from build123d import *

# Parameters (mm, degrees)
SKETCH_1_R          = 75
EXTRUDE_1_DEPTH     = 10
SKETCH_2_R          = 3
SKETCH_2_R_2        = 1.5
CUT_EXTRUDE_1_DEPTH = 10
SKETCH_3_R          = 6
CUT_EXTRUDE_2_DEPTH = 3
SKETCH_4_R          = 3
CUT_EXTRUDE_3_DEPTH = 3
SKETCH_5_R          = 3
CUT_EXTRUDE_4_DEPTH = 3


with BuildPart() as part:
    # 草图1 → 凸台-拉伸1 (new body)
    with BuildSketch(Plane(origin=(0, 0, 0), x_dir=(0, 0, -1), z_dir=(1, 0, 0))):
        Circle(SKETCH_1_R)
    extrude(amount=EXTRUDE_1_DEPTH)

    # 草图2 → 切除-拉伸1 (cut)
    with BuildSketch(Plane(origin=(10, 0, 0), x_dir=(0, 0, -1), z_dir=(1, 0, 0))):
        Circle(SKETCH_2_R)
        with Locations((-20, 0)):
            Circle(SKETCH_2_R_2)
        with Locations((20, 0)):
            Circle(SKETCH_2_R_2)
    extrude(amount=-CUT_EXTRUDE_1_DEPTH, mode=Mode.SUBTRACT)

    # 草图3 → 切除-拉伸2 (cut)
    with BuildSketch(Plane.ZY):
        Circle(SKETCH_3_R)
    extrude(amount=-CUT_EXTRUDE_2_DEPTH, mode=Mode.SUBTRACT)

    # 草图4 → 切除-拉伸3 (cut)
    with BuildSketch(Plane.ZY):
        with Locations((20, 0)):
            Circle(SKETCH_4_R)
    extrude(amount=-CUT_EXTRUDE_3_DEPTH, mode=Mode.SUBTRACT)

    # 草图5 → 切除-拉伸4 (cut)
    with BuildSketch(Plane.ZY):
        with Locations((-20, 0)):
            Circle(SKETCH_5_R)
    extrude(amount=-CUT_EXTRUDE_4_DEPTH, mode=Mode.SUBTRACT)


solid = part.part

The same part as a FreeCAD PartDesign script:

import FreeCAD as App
import Part
import Sketcher
from FreeCAD import Vector
Q = App.Units.Quantity

doc = App.newDocument("Part")
params = doc.addObject("Spreadsheet::Sheet", "Params")
for row, (alias, value) in enumerate([
    ("sketch1_diameter", "150 mm"),
    ("pad1_length", "10 mm"),
    ("sketch2_diameter", "6 mm"),
    ("sketch2_diameter2", "3 mm"),
    ("pocket1_length", "10 mm"),
    ("sketch3_diameter", "12 mm"),
    ("pocket2_length", "3 mm"),
    ("sketch4_diameter", "6 mm"),
    ("pocket3_length", "3 mm"),
    ("sketch5_diameter", "6 mm"),
    ("pocket4_length", "3 mm"),
], start=1):
    params.set(f"A{row}", alias)
    params.set(f"B{row}", "=" + value)
    params.setAlias(f"B{row}", alias)

body = doc.addObject("PartDesign::Body", "Body")

sketch1 = body.newObject("Sketcher::SketchObject", "Sketch")
sketch1.AttachmentSupport = (doc.getObject("YZ_Plane"), [""])
sketch1.MapMode = "FlatFace"
sketch1.addGeometry(Part.Circle(Vector(0, 0, 0), Vector(0, 0, 1), 75), False)
sketch1.addConstraint(Sketcher.Constraint("Coincident", 0, 3, -1, 1))
sketch1.addConstraint(Sketcher.Constraint("Diameter", 0, Q("150 mm")))
sketch1.setExpression("Constraints[1]", "Params.sketch1_diameter")
pad1 = body.newObject("PartDesign::Pad", "Pad")
pad1.Profile = sketch1
pad1.setExpression("Length", "Params.pad1_length")

sketch2 = body.newObject("Sketcher::SketchObject", "Sketch001")
sketch2.AttachmentSupport = (doc.getObject("YZ_Plane"), [""])
sketch2.MapMode = "FlatFace"
sketch2.AttachmentOffset = App.Placement(Vector(0, 0, 10), App.Rotation())
sketch2.addGeometry(Part.Circle(Vector(0, 0, 0), Vector(0, 0, 1), 3), False)
sketch2.addGeometry(Part.Circle(Vector(0, 20, 0), Vector(0, 0, 1), 1.5), False)
sketch2.addGeometry(Part.Circle(Vector(0, -20, 0), Vector(0, 0, 1), 1.5), False)
sketch2.addConstraint(Sketcher.Constraint("Coincident", 0, 3, -1, 1))
sketch2.addConstraint(Sketcher.Constraint("Equal", 1, 2))
sketch2.addConstraint(Sketcher.Constraint("Symmetric", 1, 3, 2, 3, -1, 1))
sketch2.addConstraint(Sketcher.Constraint("PointOnObject", 1, 3, -2))
sketch2.addConstraint(Sketcher.Constraint("Diameter", 0, Q("6 mm")))
sketch2.addConstraint(Sketcher.Constraint("Diameter", 1, Q("3 mm")))
sketch2.addConstraint(Sketcher.Constraint("DistanceY", -1, 1, 1, 3, Q("20 mm")))
sketch2.setExpression("Constraints[4]", "Params.sketch2_diameter")
sketch2.setExpression("Constraints[5]", "Params.sketch2_diameter2")
pocket1 = body.newObject("PartDesign::Pocket", "Pocket")
pocket1.Profile = sketch2
pocket1.setExpression("Length", "Params.pocket1_length")

sketch3 = body.newObject("Sketcher::SketchObject", "Sketch002")
sketch3.AttachmentSupport = (doc.getObject("YZ_Plane"), [""])
sketch3.MapMode = "FlatFace"
sketch3.addGeometry(Part.Circle(Vector(0, 0, 0), Vector(0, 0, 1), 6), False)
sketch3.addConstraint(Sketcher.Constraint("Coincident", 0, 3, -1, 1))
sketch3.addConstraint(Sketcher.Constraint("Diameter", 0, Q("12 mm")))
sketch3.setExpression("Constraints[1]", "Params.sketch3_diameter")
pocket2 = body.newObject("PartDesign::Pocket", "Pocket001")
pocket2.Profile = sketch3
pocket2.setExpression("Length", "Params.pocket2_length")
pocket2.Reversed = True

sketch4 = body.newObject("Sketcher::SketchObject", "Sketch003")
sketch4.AttachmentSupport = (doc.getObject("YZ_Plane"), [""])
sketch4.MapMode = "FlatFace"
sketch4.addGeometry(Part.Circle(Vector(0, 20, 0), Vector(0, 0, 1), 3), False)
sketch4.addConstraint(Sketcher.Constraint("PointOnObject", 0, 3, -2))
sketch4.addConstraint(Sketcher.Constraint("Diameter", 0, Q("6 mm")))
sketch4.addConstraint(Sketcher.Constraint("DistanceY", -1, 1, 0, 3, Q("20 mm")))
sketch4.setExpression("Constraints[1]", "Params.sketch4_diameter")
pocket3 = body.newObject("PartDesign::Pocket", "Pocket002")
pocket3.Profile = sketch4
pocket3.setExpression("Length", "Params.pocket3_length")
pocket3.Reversed = True

sketch5 = body.newObject("Sketcher::SketchObject", "Sketch004")
sketch5.AttachmentSupport = (doc.getObject("YZ_Plane"), [""])
sketch5.MapMode = "FlatFace"
sketch5.addGeometry(Part.Circle(Vector(0, -20, 0), Vector(0, 0, 1), 3), False)
sketch5.addConstraint(Sketcher.Constraint("PointOnObject", 0, 3, -2))
sketch5.addConstraint(Sketcher.Constraint("Diameter", 0, Q("6 mm")))
sketch5.addConstraint(Sketcher.Constraint("DistanceY", 0, 3, -1, 1, Q("20 mm")))
sketch5.setExpression("Constraints[1]", "Params.sketch5_diameter")
pocket4 = body.newObject("PartDesign::Pocket", "Pocket003")
pocket4.Profile = sketch5
pocket4.setExpression("Length", "Params.pocket4_length")
pocket4.Reversed = True

doc.recompute()
